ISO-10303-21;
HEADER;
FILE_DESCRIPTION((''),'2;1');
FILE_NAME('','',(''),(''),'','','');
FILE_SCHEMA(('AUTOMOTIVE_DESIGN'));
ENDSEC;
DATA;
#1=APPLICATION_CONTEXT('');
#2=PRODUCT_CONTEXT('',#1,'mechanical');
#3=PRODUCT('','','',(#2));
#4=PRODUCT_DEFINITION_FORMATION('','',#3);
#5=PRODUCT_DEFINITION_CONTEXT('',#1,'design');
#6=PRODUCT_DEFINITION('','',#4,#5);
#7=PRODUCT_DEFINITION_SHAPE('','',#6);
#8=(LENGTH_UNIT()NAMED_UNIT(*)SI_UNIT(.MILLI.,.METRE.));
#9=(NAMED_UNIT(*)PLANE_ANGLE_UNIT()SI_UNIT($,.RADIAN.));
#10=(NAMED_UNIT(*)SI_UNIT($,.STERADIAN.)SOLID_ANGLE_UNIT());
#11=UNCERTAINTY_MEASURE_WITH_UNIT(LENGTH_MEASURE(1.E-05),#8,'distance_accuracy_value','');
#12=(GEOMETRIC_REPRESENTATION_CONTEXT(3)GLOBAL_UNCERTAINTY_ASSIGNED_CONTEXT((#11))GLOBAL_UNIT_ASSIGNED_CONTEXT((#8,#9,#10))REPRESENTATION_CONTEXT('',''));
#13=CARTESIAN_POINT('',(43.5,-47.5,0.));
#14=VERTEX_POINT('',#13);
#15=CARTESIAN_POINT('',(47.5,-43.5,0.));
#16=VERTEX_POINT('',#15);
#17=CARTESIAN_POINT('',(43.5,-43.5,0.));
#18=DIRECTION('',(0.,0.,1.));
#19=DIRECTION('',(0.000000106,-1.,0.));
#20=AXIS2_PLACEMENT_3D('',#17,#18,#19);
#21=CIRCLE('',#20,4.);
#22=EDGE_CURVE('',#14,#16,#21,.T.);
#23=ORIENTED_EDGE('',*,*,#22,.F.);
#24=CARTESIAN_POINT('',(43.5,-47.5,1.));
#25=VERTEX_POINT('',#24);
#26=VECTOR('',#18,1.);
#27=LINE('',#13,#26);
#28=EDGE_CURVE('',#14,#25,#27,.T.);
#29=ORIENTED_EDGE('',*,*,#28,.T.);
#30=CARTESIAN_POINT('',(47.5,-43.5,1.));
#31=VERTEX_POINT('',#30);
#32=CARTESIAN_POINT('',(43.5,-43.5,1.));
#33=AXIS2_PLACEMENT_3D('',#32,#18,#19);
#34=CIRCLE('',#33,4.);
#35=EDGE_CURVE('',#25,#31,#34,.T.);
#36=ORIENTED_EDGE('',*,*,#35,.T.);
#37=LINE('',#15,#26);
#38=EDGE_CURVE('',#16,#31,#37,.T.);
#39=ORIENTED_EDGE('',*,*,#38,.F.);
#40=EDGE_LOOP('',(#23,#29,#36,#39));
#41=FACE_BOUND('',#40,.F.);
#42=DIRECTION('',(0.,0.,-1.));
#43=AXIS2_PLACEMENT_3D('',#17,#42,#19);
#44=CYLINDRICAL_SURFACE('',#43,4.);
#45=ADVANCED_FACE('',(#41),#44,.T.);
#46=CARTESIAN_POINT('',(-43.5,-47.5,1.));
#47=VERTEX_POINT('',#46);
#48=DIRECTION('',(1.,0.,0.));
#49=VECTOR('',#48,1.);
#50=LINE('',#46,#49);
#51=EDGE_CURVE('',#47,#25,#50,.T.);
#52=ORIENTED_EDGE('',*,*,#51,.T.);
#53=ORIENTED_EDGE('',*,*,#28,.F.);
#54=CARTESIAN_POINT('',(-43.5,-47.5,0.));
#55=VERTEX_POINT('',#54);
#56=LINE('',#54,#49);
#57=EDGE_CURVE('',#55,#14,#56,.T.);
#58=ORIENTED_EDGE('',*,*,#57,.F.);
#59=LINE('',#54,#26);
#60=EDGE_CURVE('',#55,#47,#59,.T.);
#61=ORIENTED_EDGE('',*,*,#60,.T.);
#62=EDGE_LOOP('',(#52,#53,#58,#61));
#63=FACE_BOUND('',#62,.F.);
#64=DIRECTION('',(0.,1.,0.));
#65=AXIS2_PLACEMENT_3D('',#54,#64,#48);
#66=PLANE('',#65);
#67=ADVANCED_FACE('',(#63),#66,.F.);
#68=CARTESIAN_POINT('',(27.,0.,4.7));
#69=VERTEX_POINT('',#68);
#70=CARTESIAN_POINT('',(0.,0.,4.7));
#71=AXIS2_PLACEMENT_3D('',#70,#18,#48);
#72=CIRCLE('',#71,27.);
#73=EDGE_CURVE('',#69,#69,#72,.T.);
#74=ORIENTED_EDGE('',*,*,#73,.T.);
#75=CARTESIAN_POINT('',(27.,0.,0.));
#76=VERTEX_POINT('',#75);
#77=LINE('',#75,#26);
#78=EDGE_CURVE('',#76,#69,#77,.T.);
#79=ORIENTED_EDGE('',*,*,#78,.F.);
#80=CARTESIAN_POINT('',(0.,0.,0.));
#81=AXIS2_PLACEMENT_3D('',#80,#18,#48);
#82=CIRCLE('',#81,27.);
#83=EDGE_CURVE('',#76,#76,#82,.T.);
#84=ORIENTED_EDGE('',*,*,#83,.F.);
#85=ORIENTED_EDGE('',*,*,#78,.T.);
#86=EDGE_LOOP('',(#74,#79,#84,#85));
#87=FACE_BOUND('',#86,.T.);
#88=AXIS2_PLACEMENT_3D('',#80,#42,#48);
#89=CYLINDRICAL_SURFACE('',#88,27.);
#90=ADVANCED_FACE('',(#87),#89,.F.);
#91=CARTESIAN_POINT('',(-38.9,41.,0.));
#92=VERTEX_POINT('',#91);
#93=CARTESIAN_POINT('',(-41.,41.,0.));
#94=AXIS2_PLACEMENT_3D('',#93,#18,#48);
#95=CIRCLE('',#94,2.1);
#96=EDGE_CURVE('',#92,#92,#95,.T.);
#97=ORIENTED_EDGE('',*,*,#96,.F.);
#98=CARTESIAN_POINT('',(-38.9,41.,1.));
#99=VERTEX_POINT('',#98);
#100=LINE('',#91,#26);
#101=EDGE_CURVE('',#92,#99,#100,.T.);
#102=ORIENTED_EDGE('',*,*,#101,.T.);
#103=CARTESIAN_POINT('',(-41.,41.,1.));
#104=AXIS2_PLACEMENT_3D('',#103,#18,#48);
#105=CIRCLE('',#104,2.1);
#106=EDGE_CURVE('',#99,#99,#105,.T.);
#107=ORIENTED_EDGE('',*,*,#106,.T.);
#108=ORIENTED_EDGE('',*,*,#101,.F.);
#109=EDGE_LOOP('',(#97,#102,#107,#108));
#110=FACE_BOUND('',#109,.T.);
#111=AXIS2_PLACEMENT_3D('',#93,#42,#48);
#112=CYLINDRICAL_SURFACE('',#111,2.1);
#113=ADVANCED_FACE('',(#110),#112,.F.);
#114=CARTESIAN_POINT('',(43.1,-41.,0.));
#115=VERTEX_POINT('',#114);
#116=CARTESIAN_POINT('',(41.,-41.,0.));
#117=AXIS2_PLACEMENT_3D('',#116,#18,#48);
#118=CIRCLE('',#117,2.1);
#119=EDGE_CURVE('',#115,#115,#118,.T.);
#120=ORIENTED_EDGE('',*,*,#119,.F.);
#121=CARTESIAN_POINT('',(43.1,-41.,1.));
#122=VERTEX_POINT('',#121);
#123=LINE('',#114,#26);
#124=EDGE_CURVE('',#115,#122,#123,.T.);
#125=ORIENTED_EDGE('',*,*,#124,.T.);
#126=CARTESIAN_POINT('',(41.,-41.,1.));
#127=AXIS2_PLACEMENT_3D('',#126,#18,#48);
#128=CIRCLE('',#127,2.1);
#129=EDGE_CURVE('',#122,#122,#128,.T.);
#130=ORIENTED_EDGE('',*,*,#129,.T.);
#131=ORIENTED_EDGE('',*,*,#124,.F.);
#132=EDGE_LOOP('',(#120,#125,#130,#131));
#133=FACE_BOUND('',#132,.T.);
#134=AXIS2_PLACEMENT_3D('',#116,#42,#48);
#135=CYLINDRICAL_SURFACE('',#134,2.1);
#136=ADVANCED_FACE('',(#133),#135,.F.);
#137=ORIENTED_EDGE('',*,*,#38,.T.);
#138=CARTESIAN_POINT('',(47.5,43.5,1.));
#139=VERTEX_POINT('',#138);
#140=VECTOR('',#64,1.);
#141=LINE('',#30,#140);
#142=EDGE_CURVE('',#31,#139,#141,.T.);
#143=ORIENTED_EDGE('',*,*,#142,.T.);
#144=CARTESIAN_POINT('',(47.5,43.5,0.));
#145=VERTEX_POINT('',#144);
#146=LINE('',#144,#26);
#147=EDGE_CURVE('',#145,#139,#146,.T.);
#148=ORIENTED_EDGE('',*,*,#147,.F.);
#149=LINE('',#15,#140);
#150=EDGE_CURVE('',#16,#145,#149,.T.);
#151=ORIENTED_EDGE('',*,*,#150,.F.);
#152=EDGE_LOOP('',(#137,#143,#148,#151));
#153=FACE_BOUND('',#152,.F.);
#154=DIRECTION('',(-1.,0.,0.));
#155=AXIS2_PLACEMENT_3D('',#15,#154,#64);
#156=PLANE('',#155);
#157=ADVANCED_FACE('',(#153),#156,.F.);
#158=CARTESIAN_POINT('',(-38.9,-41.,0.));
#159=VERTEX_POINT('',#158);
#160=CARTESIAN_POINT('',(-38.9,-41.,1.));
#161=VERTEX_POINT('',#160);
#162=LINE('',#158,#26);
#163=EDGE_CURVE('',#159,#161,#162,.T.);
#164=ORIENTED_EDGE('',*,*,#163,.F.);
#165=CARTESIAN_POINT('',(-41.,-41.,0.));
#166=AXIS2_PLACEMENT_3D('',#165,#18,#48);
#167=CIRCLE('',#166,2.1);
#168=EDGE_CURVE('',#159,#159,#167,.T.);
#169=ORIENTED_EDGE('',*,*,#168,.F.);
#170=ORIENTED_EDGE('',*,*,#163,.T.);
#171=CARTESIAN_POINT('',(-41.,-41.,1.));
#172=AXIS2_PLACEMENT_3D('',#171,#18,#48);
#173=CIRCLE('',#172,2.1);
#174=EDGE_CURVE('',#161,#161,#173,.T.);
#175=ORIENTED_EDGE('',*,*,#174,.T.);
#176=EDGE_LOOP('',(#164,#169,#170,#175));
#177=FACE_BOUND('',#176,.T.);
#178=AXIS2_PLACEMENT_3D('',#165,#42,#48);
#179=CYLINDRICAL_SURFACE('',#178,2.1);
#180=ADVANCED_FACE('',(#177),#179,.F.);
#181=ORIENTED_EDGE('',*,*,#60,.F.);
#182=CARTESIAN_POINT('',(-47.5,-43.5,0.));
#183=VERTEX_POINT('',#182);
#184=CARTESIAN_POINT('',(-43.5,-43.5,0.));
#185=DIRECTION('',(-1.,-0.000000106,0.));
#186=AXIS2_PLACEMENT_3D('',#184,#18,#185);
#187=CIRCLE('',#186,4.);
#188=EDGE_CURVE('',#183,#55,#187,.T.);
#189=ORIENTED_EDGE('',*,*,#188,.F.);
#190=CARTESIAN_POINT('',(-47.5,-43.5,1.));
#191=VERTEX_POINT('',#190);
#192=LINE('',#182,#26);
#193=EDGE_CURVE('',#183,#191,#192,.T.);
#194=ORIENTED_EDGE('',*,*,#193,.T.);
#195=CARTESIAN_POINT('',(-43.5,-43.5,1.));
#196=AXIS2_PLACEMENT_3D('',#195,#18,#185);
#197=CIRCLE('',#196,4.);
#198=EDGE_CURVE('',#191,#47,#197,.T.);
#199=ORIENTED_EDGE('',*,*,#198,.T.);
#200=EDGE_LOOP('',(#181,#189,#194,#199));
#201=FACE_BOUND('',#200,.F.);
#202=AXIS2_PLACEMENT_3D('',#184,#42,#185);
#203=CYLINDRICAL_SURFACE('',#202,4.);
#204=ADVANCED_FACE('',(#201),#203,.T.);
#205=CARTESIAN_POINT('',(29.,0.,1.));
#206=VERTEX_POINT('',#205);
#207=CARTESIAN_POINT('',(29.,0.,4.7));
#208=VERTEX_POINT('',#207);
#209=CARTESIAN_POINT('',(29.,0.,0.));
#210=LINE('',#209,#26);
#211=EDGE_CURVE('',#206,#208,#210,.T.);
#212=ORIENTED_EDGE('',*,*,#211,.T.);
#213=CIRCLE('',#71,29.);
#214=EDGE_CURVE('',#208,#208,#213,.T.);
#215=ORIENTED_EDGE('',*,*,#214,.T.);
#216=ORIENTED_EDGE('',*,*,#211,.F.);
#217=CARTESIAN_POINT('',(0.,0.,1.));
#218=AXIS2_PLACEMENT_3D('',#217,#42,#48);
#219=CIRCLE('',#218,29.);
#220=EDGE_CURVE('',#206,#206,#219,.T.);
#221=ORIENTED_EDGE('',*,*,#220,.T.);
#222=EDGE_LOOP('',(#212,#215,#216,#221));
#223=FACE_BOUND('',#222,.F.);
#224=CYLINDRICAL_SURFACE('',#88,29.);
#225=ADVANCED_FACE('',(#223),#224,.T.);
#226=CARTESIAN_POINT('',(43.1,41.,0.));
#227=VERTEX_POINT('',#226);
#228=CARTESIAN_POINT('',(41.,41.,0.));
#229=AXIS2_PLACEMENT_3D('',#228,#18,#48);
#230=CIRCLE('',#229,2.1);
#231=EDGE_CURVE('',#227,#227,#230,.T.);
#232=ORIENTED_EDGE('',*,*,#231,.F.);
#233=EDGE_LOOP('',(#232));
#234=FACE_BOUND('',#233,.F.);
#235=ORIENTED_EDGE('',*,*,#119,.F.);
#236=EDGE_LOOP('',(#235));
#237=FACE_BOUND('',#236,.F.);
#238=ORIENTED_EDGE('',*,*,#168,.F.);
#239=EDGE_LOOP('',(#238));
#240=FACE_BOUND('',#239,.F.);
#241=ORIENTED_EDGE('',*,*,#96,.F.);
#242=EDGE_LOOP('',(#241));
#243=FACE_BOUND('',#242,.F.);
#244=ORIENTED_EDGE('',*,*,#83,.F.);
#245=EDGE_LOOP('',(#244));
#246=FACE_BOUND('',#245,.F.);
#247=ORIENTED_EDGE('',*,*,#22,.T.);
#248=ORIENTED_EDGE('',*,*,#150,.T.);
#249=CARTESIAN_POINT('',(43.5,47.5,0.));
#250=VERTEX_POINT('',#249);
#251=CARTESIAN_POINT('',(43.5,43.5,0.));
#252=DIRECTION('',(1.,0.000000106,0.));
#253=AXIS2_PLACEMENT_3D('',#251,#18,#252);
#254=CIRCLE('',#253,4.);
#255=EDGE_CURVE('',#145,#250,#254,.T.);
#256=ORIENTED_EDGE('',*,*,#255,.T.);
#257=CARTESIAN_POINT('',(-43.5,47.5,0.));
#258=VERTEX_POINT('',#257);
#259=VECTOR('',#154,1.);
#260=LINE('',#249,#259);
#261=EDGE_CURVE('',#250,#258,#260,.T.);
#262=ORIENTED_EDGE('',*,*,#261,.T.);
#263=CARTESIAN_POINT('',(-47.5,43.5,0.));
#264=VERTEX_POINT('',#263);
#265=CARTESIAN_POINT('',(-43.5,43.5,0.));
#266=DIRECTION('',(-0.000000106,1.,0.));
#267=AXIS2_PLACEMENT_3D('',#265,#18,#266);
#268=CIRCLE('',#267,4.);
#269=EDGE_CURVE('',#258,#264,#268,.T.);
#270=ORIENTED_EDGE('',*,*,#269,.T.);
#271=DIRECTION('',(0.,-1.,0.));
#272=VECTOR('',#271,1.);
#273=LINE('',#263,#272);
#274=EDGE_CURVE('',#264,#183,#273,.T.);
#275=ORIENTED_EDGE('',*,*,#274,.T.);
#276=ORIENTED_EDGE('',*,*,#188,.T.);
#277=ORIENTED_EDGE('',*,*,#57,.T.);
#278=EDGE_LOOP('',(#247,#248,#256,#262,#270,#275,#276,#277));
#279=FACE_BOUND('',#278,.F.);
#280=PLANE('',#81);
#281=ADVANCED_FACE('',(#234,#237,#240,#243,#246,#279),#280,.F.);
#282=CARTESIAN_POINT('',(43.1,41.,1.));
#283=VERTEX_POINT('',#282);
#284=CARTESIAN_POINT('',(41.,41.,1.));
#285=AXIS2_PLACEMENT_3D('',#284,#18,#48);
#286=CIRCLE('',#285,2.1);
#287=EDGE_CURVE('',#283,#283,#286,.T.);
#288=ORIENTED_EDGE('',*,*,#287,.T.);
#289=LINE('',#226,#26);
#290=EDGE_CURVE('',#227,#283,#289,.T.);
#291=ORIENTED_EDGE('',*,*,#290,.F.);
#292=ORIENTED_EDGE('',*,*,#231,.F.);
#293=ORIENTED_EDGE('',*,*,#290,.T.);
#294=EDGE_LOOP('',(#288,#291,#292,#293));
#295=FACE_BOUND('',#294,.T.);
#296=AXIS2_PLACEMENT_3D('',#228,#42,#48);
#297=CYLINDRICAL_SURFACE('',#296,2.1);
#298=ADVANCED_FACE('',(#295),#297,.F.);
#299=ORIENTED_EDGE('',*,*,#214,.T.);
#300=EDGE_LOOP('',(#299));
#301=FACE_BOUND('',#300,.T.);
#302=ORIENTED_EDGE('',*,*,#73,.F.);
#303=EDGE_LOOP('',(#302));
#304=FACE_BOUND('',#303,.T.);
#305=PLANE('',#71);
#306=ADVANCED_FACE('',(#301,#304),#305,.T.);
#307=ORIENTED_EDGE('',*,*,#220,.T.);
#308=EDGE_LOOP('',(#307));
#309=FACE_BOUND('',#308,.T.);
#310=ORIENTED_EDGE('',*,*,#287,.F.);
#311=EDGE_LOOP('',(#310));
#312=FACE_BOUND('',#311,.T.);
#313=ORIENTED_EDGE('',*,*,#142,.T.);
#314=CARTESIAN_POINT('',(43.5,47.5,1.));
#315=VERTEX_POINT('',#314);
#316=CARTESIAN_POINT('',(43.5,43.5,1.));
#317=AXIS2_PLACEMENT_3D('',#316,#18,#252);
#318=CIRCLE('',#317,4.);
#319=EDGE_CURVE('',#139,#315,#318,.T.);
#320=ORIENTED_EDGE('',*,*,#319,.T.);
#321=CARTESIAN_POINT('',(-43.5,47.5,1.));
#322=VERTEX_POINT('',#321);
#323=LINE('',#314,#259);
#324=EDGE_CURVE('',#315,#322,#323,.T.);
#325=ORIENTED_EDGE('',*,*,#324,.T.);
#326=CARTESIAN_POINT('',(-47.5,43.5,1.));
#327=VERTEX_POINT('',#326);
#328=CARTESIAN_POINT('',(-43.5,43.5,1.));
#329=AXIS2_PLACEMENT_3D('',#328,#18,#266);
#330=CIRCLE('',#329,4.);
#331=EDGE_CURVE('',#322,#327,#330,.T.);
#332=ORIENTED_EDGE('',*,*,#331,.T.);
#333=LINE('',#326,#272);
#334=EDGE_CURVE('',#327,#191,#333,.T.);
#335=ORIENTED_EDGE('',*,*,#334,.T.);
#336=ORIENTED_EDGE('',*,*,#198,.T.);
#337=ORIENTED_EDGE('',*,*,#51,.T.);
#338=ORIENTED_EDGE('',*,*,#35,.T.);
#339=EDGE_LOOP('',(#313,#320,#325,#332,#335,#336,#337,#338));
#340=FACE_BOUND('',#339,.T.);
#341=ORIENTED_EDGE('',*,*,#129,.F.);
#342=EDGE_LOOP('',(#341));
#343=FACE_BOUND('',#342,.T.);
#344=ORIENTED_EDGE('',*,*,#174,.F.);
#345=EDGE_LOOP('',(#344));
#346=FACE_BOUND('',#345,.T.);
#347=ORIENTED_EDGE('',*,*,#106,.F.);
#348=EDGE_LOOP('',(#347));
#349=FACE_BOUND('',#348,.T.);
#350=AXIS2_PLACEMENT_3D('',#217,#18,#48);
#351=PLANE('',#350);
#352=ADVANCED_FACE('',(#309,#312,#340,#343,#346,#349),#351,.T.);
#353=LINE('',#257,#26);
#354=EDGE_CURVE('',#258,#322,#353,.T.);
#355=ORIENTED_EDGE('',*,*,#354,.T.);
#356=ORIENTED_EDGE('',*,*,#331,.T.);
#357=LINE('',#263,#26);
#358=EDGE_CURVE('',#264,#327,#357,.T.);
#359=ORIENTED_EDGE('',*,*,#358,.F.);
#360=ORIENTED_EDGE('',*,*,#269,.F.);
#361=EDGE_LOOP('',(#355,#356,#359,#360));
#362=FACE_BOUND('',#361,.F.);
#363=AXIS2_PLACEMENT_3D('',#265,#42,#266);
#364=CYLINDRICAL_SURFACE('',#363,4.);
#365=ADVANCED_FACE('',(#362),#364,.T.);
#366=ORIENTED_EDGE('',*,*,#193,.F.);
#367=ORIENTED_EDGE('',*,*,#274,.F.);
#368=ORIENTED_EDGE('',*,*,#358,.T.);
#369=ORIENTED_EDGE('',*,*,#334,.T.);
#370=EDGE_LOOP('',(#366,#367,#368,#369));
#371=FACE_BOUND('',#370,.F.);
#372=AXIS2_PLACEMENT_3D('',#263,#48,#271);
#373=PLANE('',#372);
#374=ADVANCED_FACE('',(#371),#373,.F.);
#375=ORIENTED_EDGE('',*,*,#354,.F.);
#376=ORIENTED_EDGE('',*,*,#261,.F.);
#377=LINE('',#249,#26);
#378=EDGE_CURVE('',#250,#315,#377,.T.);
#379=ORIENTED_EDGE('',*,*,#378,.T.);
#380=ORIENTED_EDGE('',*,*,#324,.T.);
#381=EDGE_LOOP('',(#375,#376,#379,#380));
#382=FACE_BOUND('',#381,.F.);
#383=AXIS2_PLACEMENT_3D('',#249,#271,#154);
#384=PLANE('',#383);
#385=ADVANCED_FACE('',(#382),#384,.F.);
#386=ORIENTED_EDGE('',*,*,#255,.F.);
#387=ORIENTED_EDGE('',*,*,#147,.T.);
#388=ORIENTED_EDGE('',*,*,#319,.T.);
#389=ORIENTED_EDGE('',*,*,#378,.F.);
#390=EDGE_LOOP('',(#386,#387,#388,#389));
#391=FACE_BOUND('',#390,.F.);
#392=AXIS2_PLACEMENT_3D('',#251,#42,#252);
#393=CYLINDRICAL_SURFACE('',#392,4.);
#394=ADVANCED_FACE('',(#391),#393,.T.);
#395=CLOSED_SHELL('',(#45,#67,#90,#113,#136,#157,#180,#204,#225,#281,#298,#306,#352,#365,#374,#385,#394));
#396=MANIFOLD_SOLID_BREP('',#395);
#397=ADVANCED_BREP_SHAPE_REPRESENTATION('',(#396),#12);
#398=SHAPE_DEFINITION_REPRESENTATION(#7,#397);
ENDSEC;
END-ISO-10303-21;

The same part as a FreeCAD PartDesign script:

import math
import FreeCAD as App
import Part
import Sketcher

doc = App.newDocument("Part")
body = doc.addObject("PartDesign::Body", "Body")

# Sketch on XY plane
sketch1 = body.newObject("Sketcher::SketchObject", "Sketch")
sketch1.AttachmentSupport = (doc.getObject("XY_Plane"), [""])
sketch1.MapMode = "FlatFace"
sketch1.addGeometry([
    Part.LineSegment(App.Vector(-43.5, -47.5, 0), App.Vector(43.5, -47.5, 0)),  # 0
    Part.ArcOfCircle(Part.Circle(App.Vector(43.5, -43.5, 0), App.Vector(0, 0, 1), 4), math.radians(-89.999994), math.radians(-0.000006)),  # 1
    Part.LineSegment(App.Vector(47.5, -43.5, 0), App.Vector(47.5, 43.5, 0)),  # 2
    Part.ArcOfCircle(Part.Circle(App.Vector(43.5, 43.5, 0), App.Vector(0, 0, 1), 4), math.radians(0.000006), math.radians(89.999994)),  # 3
    Part.LineSegment(App.Vector(43.5, 47.5, 0), App.Vector(-43.5, 47.5, 0)),  # 4
    Part.ArcOfCircle(Part.Circle(App.Vector(-43.5, 43.5, 0), App.Vector(0, 0, 1), 4), math.radians(90.000006), math.radians(179.999994)),  # 5
    Part.LineSegment(App.Vector(-47.5, 43.5, 0), App.Vector(-47.5, -43.5, 0)),  # 6
    Part.ArcOfCircle(Part.Circle(App.Vector(-43.5, -43.5, 0), App.Vector(0, 0, 1), 4), math.radians(-179.999994), math.radians(-90.000006)),  # 7
    Part.Circle(App.Vector(-41, -41, 0), App.Vector(0, 0, 1), 2.1),  # 8
    Part.Circle(App.Vector(41, -41, 0), App.Vector(0, 0, 1), 2.1),  # 9
    Part.Circle(App.Vector(-41, 41, 0), App.Vector(0, 0, 1), 2.1),  # 10
    Part.Circle(App.Vector(0, 0, 0), App.Vector(0, 0, 1), 27),  # 11
    Part.Circle(App.Vector(41, 41, 0), App.Vector(0, 0, 1), 2.1),  # 12
], False)
sketch1.addConstraint([
    Sketcher.Constraint("Tangent", 0, 2, 1, 1),
    Sketcher.Constraint("Tangent", 1, 2, 2, 1),
    Sketcher.Constraint("Tangent", 2, 2, 3, 1),
    Sketcher.Constraint("Tangent", 3, 2, 4, 1),
    Sketcher.Constraint("Tangent", 4, 2, 5, 1),
    Sketcher.Constraint("Tangent", 5, 2, 6, 1),
    Sketcher.Constraint("Tangent", 6, 2, 7, 1),
    Sketcher.Constraint("Tangent", 7, 2, 0, 1),
    Sketcher.Constraint("Horizontal", 0),
    Sketcher.Constraint("Vertical", 2),
    Sketcher.Constraint("Horizontal", 4),
    Sketcher.Constraint("Vertical", 6),
    Sketcher.Constraint("Coincident", 11, 3, -1, 1),
    Sketcher.Constraint("Equal", 1, 3),
    Sketcher.Constraint("Equal", 3, 5),
    Sketcher.Constraint("Equal", 5, 7),
    Sketcher.Constraint("Equal", 8, 9),
    Sketcher.Constraint("Equal", 9, 10),
    Sketcher.Constraint("Equal", 10, 12),
    Sketcher.Constraint("Symmetric", 1, 3, 5, 3, -1, 1),
    Sketcher.Constraint("Symmetric", 9, 3, 10, 3, -1, 1),
    Sketcher.Constraint("Symmetric", 8, 3, 12, 3, -1, 1),
    Sketcher.Constraint("Symmetric", 8, 3, 9, 3, -2),
    Sketcher.Constraint("Equal", 4, 2),
    Sketcher.Constraint("Diameter", 11, 54.0),
    Sketcher.Constraint("Radius", 1, 4.0),
    Sketcher.Constraint("Diameter", 8, 4.2),
    Sketcher.Constraint("DistanceX", 0, 1, 0, 2, 87.0),
    Sketcher.Constraint("DistanceX", 8, 3, -1, 1, 41.0),
    Sketcher.Constraint("DistanceY", 8, 3, -1, 1, 41.0),
])
pad1 = body.newObject("PartDesign::Pad", "Pad")
pad1.Profile = sketch1
pad1.Length = 1

# Sketch on XY plane
sketch2 = body.newObject("Sketcher::SketchObject", "Sketch001")
sketch2.AttachmentSupport = (doc.getObject("XY_Plane"), [""])
sketch2.MapMode = "FlatFace"
sketch2.addGeometry([
    Part.Circle(App.Vector(0, 0, 0), App.Vector(0, 0, 1), 29),
    Part.Circle(App.Vector(0, 0, 0), App.Vector(0, 0, 1), 27),
], False)
sketch2.addConstraint([
    Sketcher.Constraint("Coincident", 0, 3, -1, 1),
    Sketcher.Constraint("Coincident", 1, 3, -1, 1),
    Sketcher.Constraint("Diameter", 0, 58.0),
    Sketcher.Constraint("Diameter", 1, 54.0),
])
pad2 = body.newObject("PartDesign::Pad", "Pad001")
pad2.Profile = sketch2
pad2.Length = 4.7

doc.recompute()
